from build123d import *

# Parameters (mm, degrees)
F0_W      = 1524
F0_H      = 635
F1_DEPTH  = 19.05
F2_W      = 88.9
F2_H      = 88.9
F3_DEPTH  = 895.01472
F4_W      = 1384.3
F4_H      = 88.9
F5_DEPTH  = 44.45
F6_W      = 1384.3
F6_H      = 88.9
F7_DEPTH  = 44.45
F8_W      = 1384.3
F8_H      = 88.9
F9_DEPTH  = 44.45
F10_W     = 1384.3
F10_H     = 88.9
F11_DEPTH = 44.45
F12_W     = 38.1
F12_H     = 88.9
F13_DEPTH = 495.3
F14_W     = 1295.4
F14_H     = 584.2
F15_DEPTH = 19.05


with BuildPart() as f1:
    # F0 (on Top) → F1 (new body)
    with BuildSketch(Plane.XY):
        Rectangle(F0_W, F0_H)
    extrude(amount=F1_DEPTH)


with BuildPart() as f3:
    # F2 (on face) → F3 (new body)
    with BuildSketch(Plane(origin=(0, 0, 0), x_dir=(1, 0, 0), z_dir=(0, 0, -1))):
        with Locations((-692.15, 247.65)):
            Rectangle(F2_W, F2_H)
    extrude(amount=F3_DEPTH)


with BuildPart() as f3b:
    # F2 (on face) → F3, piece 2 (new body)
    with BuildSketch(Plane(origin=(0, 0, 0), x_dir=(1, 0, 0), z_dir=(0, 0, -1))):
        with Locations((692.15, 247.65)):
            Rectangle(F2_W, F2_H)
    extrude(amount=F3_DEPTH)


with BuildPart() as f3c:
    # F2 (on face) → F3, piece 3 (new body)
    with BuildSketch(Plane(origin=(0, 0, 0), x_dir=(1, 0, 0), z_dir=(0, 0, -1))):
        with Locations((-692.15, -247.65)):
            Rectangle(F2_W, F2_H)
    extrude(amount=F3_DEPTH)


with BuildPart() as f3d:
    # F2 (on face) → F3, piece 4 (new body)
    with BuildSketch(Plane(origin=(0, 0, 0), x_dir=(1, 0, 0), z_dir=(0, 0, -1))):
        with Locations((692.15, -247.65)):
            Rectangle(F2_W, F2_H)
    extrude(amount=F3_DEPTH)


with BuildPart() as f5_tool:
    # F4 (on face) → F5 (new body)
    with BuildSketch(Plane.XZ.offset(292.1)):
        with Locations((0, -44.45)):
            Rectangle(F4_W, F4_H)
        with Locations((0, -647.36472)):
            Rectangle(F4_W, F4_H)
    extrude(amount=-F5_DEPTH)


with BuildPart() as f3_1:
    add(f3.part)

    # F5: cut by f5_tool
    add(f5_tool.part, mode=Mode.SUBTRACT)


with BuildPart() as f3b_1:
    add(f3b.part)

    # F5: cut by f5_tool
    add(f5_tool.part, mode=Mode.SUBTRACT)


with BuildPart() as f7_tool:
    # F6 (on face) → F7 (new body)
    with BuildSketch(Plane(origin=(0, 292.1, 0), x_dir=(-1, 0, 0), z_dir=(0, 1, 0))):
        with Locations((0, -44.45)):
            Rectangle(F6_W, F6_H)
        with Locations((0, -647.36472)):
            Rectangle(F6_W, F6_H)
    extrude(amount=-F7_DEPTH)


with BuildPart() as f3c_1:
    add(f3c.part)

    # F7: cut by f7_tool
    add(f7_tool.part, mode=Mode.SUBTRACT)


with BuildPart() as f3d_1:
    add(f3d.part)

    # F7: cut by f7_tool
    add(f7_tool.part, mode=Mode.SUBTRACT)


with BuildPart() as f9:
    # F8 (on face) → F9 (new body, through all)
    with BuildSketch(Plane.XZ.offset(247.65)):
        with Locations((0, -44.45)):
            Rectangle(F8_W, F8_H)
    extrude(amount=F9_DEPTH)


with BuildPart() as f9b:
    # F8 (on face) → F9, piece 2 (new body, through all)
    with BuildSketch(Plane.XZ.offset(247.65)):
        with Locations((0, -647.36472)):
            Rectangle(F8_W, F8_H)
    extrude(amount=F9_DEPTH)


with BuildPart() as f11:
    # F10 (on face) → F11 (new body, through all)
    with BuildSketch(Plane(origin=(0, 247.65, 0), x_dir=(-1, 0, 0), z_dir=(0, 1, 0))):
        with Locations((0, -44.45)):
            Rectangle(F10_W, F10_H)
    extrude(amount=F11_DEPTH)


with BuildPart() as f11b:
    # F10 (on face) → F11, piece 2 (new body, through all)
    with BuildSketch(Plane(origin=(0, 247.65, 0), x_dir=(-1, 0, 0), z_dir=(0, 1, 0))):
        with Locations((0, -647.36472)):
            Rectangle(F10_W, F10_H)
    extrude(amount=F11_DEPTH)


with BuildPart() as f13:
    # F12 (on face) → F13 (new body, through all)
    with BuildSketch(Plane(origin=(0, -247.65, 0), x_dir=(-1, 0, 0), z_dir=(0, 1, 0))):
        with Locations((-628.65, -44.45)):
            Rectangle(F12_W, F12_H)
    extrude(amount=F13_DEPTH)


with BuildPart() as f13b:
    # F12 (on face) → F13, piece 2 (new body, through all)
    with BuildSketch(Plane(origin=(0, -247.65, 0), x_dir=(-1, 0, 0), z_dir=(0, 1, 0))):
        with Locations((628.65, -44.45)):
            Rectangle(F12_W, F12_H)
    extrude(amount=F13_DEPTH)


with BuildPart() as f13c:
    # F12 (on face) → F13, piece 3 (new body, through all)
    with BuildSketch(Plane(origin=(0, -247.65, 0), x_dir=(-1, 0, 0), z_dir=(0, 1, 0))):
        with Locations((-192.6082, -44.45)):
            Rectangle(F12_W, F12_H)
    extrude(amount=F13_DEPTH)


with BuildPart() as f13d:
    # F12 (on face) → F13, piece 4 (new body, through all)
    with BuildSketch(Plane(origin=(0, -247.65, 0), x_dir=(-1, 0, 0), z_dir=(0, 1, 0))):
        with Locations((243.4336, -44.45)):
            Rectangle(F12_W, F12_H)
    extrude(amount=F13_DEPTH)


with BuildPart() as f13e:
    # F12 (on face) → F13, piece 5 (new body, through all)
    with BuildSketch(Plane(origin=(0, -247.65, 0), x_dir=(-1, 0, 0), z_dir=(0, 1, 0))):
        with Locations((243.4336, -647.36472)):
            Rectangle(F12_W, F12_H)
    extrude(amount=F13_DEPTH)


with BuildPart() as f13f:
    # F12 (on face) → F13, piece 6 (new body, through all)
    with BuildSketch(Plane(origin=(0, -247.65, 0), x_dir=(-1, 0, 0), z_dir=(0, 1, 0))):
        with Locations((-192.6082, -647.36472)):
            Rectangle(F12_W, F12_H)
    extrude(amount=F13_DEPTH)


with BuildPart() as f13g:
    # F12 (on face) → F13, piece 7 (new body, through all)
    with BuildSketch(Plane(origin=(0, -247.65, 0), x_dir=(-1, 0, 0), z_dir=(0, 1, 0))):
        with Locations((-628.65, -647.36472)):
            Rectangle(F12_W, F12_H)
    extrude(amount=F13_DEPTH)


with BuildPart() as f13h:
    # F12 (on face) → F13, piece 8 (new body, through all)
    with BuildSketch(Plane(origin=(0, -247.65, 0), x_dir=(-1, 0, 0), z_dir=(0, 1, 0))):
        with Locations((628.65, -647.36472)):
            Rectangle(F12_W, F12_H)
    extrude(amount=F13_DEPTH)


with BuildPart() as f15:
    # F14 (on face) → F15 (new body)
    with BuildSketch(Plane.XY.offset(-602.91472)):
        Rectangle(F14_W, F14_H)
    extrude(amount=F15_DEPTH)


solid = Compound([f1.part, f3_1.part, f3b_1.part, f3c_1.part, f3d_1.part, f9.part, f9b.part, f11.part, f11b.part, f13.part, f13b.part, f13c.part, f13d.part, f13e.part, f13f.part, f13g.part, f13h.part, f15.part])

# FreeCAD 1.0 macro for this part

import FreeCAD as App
import Part
import Sketcher
Q = App.Units.Quantity

doc = App.newDocument("Part")
body = doc.addObject("PartDesign::Body", "Body")

# Sketch on XY plane
sketch1 = doc.addObject("Sketcher::SketchObject", "Sketch")
body.addObject(sketch1)
sketch1.AttachmentSupport = (doc.XY_Plane, [""])
sketch1.MapMode = "FlatFace"
sketch1.addGeometry(Part.LineSegment(App.Vector(-762, 318, 0), App.Vector(-762, -318, 0)), False)
sketch1.addGeometry(Part.LineSegment(App.Vector(-762, -318, 0), App.Vector(762, -318, 0)), False)
sketch1.addGeometry(Part.LineSegment(App.Vector(762, -318, 0), App.Vector(762, 318, 0)), False)
sketch1.addGeometry(Part.LineSegment(App.Vector(762, 318, 0), App.Vector(-762, 318, 0)), False)
sketch1.addConstraint(Sketcher.Constraint("Coincident", 0, 2, 1, 1))
sketch1.addConstraint(Sketcher.Constraint("Coincident", 1, 2, 2, 1))
sketch1.addConstraint(Sketcher.Constraint("Coincident", 2, 2, 3, 1))
sketch1.addConstraint(Sketcher.Constraint("Coincident", 3, 2, 0, 1))
sketch1.addConstraint(Sketcher.Constraint("Vertical", 0))
sketch1.addConstraint(Sketcher.Constraint("Horizontal", 1))
sketch1.addConstraint(Sketcher.Constraint("Vertical", 2))
sketch1.addConstraint(Sketcher.Constraint("Horizontal", 3))
sketch1.addConstraint(Sketcher.Constraint("Symmetric", 0, 2, 2, 2, -1, 1))
sketch1.addConstraint(Sketcher.Constraint("DistanceX", 1, 1, 1, 2, Q("60 in")))
sketch1.addConstraint(Sketcher.Constraint("DistanceY", 0, 2, 0, 1, Q("25 in")))
pad1 = doc.addObject("PartDesign::Pad", "Pad")
body.addObject(pad1)
pad1.Profile = sketch1
pad1.Length = Q("0.75 in")
body2 = doc.addObject("PartDesign::Body", "Body001")

# Sketch on XY plane
sketch2 = doc.addObject("Sketcher::SketchObject", "Sketch001")
body2.addObject(sketch2)
sketch2.AttachmentSupport = (doc.getObject("XY_Plane001"), [""])
sketch2.MapMode = "FlatFace"
sketch2.addGeometry(Part.LineSegment(App.Vector(-737, -292, 0), App.Vector(-737, -203, 0)), False)
sketch2.addGeometry(Part.LineSegment(App.Vector(-737, -203, 0), App.Vector(-648, -203, 0)), False)
sketch2.addGeometry(Part.LineSegment(App.Vector(-648, -203, 0), App.Vector(-648, -292, 0)), False)
sketch2.addGeometry(Part.LineSegment(App.Vector(-648, -292, 0), App.Vector(-737, -292, 0)), False)
sketch2.addConstraint(Sketcher.Constraint("Coincident", 0, 2, 1, 1))
sketch2.addConstraint(Sketcher.Constraint("Coincident", 1, 2, 2, 1))
sketch2.addConstraint(Sketcher.Constraint("Coincident", 2, 2, 3, 1))
sketch2.addConstraint(Sketcher.Constraint("Coincident", 3, 2, 0, 1))
sketch2.addConstraint(Sketcher.Constraint("Vertical", 0))
sketch2.addConstraint(Sketcher.Constraint("Horizontal", 1))
sketch2.addConstraint(Sketcher.Constraint("Vertical", 2))
sketch2.addConstraint(Sketcher.Constraint("Horizontal", 3))
sketch2.addConstraint(Sketcher.Constraint("Equal", 3, 0))
sketch2.addConstraint(Sketcher.Constraint("DistanceX", 1, 1, 1, 2, Q("3.5 in")))
sketch2.addConstraint(Sketcher.Constraint("DistanceX", 0, 2, -1, 1, Q("29 in")))
sketch2.addConstraint(Sketcher.Constraint("DistanceY", 0, 2, -1, 1, Q("8 in")))
pad2 = doc.addObject("PartDesign::Pad", "Pad001")
body2.addObject(pad2)
pad2.Profile = sketch2
pad2.Length = Q("35.2368 in")
pad2.Reversed = True
body3 = doc.addObject("PartDesign::Body", "Body002")

# Sketch on XY plane
sketch3 = doc.addObject("Sketcher::SketchObject", "Sketch002")
body3.addObject(sketch3)
sketch3.AttachmentSupport = (doc.getObject("XY_Plane002"), [""])
sketch3.MapMode = "FlatFace"
sketch3.addGeometry(Part.LineSegment(App.Vector(648, -292, 0), App.Vector(648, -203, 0)), False)
sketch3.addGeometry(Part.LineSegment(App.Vector(648, -203, 0), App.Vector(737, -203, 0)), False)
sketch3.addGeometry(Part.LineSegment(App.Vector(737, -203, 0), App.Vector(737, -292, 0)), False)
sketch3.addGeometry(Part.LineSegment(App.Vector(737, -292, 0), App.Vector(648, -292, 0)), False)
sketch3.addConstraint(Sketcher.Constraint("Coincident", 0, 2, 1, 1))
sketch3.addConstraint(Sketcher.Constraint("Coincident", 1, 2, 2, 1))
sketch3.addConstraint(Sketcher.Constraint("Coincident", 2, 2, 3, 1))
sketch3.addConstraint(Sketcher.Constraint("Coincident", 3, 2, 0, 1))
sketch3.addConstraint(Sketcher.Constraint("Vertical", 0))
sketch3.addConstraint(Sketcher.Constraint("Horizontal", 1))
sketch3.addConstraint(Sketcher.Constraint("Vertical", 2))
sketch3.addConstraint(Sketcher.Constraint("Horizontal", 3))
sketch3.addConstraint(Sketcher.Constraint("Equal", 3, 0))
sketch3.addConstraint(Sketcher.Constraint("DistanceX", 1, 1, 1, 2, Q("3.5 in")))
sketch3.addConstraint(Sketcher.Constraint("DistanceY", 0, 2, -1, 1, Q("8 in")))
sketch3.addConstraint(Sketcher.Constraint("DistanceX", -1, 1, 1, 2, Q("29 in")))
pad3 = doc.addObject("PartDesign::Pad", "Pad002")
body3.addObject(pad3)
pad3.Profile = sketch3
pad3.Length = Q("35.2368 in")
pad3.Reversed = True
body4 = doc.addObject("PartDesign::Body", "Body003")

# Sketch on XY plane
sketch4 = doc.addObject("Sketcher::SketchObject", "Sketch003")
body4.addObject(sketch4)
sketch4.AttachmentSupport = (doc.getObject("XY_Plane003"), [""])
sketch4.MapMode = "FlatFace"
sketch4.addGeometry(Part.LineSegment(App.Vector(-737, 203, 0), App.Vector(-737, 292, 0)), False)
sketch4.addGeometry(Part.LineSegment(App.Vector(-737, 292, 0), App.Vector(-648, 292, 0)), False)
sketch4.addGeometry(Part.LineSegment(App.Vector(-648, 292, 0), App.Vector(-648, 203, 0)), False)
sketch4.addGeometry(Part.LineSegment(App.Vector(-648, 203, 0), App.Vector(-737, 203, 0)), False)
sketch4.addConstraint(Sketcher.Constraint("Coincident", 0, 2, 1, 1))
sketch4.addConstraint(Sketcher.Constraint("Coincident", 1, 2, 2, 1))
sketch4.addConstraint(Sketcher.Constraint("Coincident", 2, 2, 3, 1))
sketch4.addConstraint(Sketcher.Constraint("Coincident", 3, 2, 0, 1))
sketch4.addConstraint(Sketcher.Constraint("Vertical", 0))
sketch4.addConstraint(Sketcher.Constraint("Horizontal", 1))
sketch4.addConstraint(Sketcher.Constraint("Vertical", 2))
sketch4.addConstraint(Sketcher.Constraint("Horizontal", 3))
sketch4.addConstraint(Sketcher.Constraint("Equal", 3, 0))
sketch4.addConstraint(Sketcher.Constraint("DistanceX", 1, 1, 1, 2, Q("3.5 in")))
sketch4.addConstraint(Sketcher.Constraint("DistanceX", 0, 2, -1, 1, Q("29 in")))
sketch4.addConstraint(Sketcher.Constraint("DistanceY", -1, 1, 2, 2, Q("8 in")))
pad4 = doc.addObject("PartDesign::Pad", "Pad003")
body4.addObject(pad4)
pad4.Profile = sketch4
pad4.Length = Q("35.2368 in")
pad4.Reversed = True
body5 = doc.addObject("PartDesign::Body", "Body004")

# Sketch on XY plane
sketch5 = doc.addObject("Sketcher::SketchObject", "Sketch004")
body5.addObject(sketch5)
sketch5.AttachmentSupport = (doc.getObject("XY_Plane004"), [""])
sketch5.MapMode = "FlatFace"
sketch5.addGeometry(Part.LineSegment(App.Vector(648, 203, 0), App.Vector(648, 292, 0)), False)
sketch5.addGeometry(Part.LineSegment(App.Vector(648, 292, 0), App.Vector(737, 292, 0)), False)
sketch5.addGeometry(Part.LineSegment(App.Vector(737, 292, 0), App.Vector(737, 203, 0)), False)
sketch5.addGeometry(Part.LineSegment(App.Vector(737, 203, 0), App.Vector(648, 203, 0)), False)
sketch5.addConstraint(Sketcher.Constraint("Coincident", 0, 2, 1, 1))
sketch5.addConstraint(Sketcher.Constraint("Coincident", 1, 2, 2, 1))
sketch5.addConstraint(Sketcher.Constraint("Coincident", 2, 2, 3, 1))
sketch5.addConstraint(Sketcher.Constraint("Coincident", 3, 2, 0, 1))
sketch5.addConstraint(Sketcher.Constraint("Vertical", 0))
sketch5.addConstraint(Sketcher.Constraint("Horizontal", 1))
sketch5.addConstraint(Sketcher.Constraint("Vertical", 2))
sketch5.addConstraint(Sketcher.Constraint("Horizontal", 3))
sketch5.addConstraint(Sketcher.Constraint("Equal", 3, 0))
sketch5.addConstraint(Sketcher.Constraint("DistanceX", 1, 1, 1, 2, Q("3.5 in")))
sketch5.addConstraint(Sketcher.Constraint("DistanceX", -1, 1, 1, 2, Q("29 in")))
sketch5.addConstraint(Sketcher.Constraint("DistanceY", -1, 1, 2, 2, Q("8 in")))
pad5 = doc.addObject("PartDesign::Pad", "Pad004")
body5.addObject(pad5)
pad5.Profile = sketch5
pad5.Length = Q("35.2368 in")
pad5.Reversed = True
body6 = doc.addObject("PartDesign::Body", "Body005")
body6.AllowCompound = True

# Sketch on XZ plane
sketch6 = doc.addObject("Sketcher::SketchObject", "Sketch005")
body6.addObject(sketch6)
sketch6.AttachmentSupport = (doc.getObject("XZ_Plane005"), [""])
sketch6.MapMode = "FlatFace"
sketch6.AttachmentOffset = App.Placement(App.Vector(0, 0, 11.5 * 25.4), App.Rotation())
sketch6.addGeometry(Part.LineSegment(App.Vector(-692, 0, 0), App.Vector(-692, -89, 0)), False)
sketch6.addGeometry(Part.LineSegment(App.Vector(-692, -89, 0), App.Vector(692, -89, 0)), False)
sketch6.addGeometry(Part.LineSegment(App.Vector(692, -89, 0), App.Vector(692, 0, 0)), False)
sketch6.addGeometry(Part.LineSegment(App.Vector(692, 0, 0), App.Vector(-692, 0, 0)), False)
sketch6.addGeometry(Part.LineSegment(App.Vector(-692, -603, 0), App.Vector(-692, -692, 0)), False)
sketch6.addGeometry(Part.LineSegment(App.Vector(-692, -692, 0), App.Vector(692, -692, 0)), False)
sketch6.addGeometry(Part.LineSegment(App.Vector(692, -692, 0), App.Vector(692, -603, 0)), False)
sketch6.addGeometry(Part.LineSegment(App.Vector(692, -603, 0), App.Vector(-692, -603, 0)), False)
sketch6.addConstraint(Sketcher.Constraint("Coincident", 0, 2, 1, 1))
sketch6.addConstraint(Sketcher.Constraint("Coincident", 1, 2, 2, 1))
sketch6.addConstraint(Sketcher.Constraint("Coincident", 2, 2, 3, 1))
sketch6.addConstraint(Sketcher.Constraint("Coincident", 3, 2, 0, 1))
sketch6.addConstraint(Sketcher.Constraint("Coincident", 4, 2, 5, 1))
sketch6.addConstraint(Sketcher.Constraint("Coincident", 5, 2, 6, 1))
sketch6.addConstraint(Sketcher.Constraint("Coincident", 6, 2, 7, 1))
sketch6.addConstraint(Sketcher.Constraint("Coincident", 7, 2, 4, 1))
sketch6.addConstraint(Sketcher.Constraint("Vertical", 0))
sketch6.addConstraint(Sketcher.Constraint("Horizontal", 1))
sketch6.addConstraint(Sketcher.Constraint("Vertical", 2))
sketch6.addConstraint(Sketcher.Constraint("Horizontal", 3))
sketch6.addConstraint(Sketcher.Constraint("Vertical", 4))
sketch6.addConstraint(Sketcher.Constraint("Horizontal", 5))
sketch6.addConstraint(Sketcher.Constraint("Vertical", 6))
sketch6.addConstraint(Sketcher.Constraint("Horizontal", 7))
sketch6.addConstraint(Sketcher.Constraint("Symmetric", 2, 2, 3, 2, -1, 1))
sketch6.addConstraint(Sketcher.Constraint("Vertical", 3, 2, 4, 2))
sketch6.addConstraint(Sketcher.Constraint("Vertical", 2, 2, 5, 2))
sketch6.addConstraint(Sketcher.Constraint("Equal", 2, 4))
sketch6.addConstraint(Sketcher.Constraint("DistanceX", 1, 1, 1, 2, Q("54.5 in")))
sketch6.addConstraint(Sketcher.Constraint("DistanceY", 0, 2, 0, 1, Q("3.5 in")))
sketch6.addConstraint(Sketcher.Constraint("DistanceY", 4, 2, -1, 1, Q("27.2368 in")))
pad6 = doc.addObject("PartDesign::Pad", "Pad005")
body6.addObject(pad6)
pad6.Profile = sketch6
pad6.Length = Q("1.75 in")
pad6.Reversed = True
doc.recompute()

body7 = doc.addObject("PartDesign::Body", "Body006")
body7.BaseFeature = body6
boolean = doc.addObject("PartDesign::Boolean", "Boolean")
body2.addObject(boolean)
boolean.Type = "Cut"
boolean.addObjects([body7])
doc.recompute()

boolean2 = doc.addObject("PartDesign::Boolean", "Boolean001")
body3.addObject(boolean2)
boolean2.Type = "Cut"
boolean2.addObjects([body6])
body8 = doc.addObject("PartDesign::Body", "Body007")
body8.AllowCompound = True

# Sketch on XZ plane
sketch7 = doc.addObject("Sketcher::SketchObject", "Sketch006")
body8.addObject(sketch7)
sketch7.AttachmentSupport = (doc.getObject("XZ_Plane007"), [""])
sketch7.MapMode = "FlatFace"
sketch7.AttachmentOffset = App.Placement(App.Vector(0, 0, -11.5 * 25.4), App.Rotation())
sketch7.addGeometry(Part.LineSegment(App.Vector(692, 0, 0), App.Vector(692, -89, 0)), False)
sketch7.addGeometry(Part.LineSegment(App.Vector(692, -89, 0), App.Vector(-692, -89, 0)), False)
sketch7.addGeometry(Part.LineSegment(App.Vector(-692, -89, 0), App.Vector(-692, 0, 0)), False)
sketch7.addGeometry(Part.LineSegment(App.Vector(-692, 0, 0), App.Vector(692, 0, 0)), False)
sketch7.addGeometry(Part.LineSegment(App.Vector(692, -603, 0), App.Vector(692, -692, 0)), False)
sketch7.addGeometry(Part.LineSegment(App.Vector(692, -692, 0), App.Vector(-692, -692, 0)), False)
sketch7.addGeometry(Part.LineSegment(App.Vector(-692, -692, 0), App.Vector(-692, -603, 0)), False)
sketch7.addGeometry(Part.LineSegment(App.Vector(-692, -603, 0), App.Vector(692, -603, 0)), False)
sketch7.addConstraint(Sketcher.Constraint("Coincident", 0, 2, 1, 1))
sketch7.addConstraint(Sketcher.Constraint("Coincident", 1, 2, 2, 1))
sketch7.addConstraint(Sketcher.Constraint("Coincident", 2, 2, 3, 1))
sketch7.addConstraint(Sketcher.Constraint("Coincident", 3, 2, 0, 1))
sketch7.addConstraint(Sketcher.Constraint("Coincident", 4, 2, 5, 1))
sketch7.addConstraint(Sketcher.Constraint("Coincident", 5, 2, 6, 1))
sketch7.addConstraint(Sketcher.Constraint("Coincident", 6, 2, 7, 1))
sketch7.addConstraint(Sketcher.Constraint("Coincident", 7, 2, 4, 1))
sketch7.addConstraint(Sketcher.Constraint("Vertical", 0))
sketch7.addConstraint(Sketcher.Constraint("Horizontal", 1))
sketch7.addConstraint(Sketcher.Constraint("Vertical", 2))
sketch7.addConstraint(Sketcher.Constraint("Horizontal", 3))
sketch7.addConstraint(Sketcher.Constraint("Vertical", 4))
sketch7.addConstraint(Sketcher.Constraint("Horizontal", 5))
sketch7.addConstraint(Sketcher.Constraint("Vertical", 6))
sketch7.addConstraint(Sketcher.Constraint("Horizontal", 7))
sketch7.addConstraint(Sketcher.Constraint("Symmetric", 2, 2, 3, 2, -1, 1))
sketch7.addConstraint(Sketcher.Constraint("Vertical", 3, 2, 4, 2))
sketch7.addConstraint(Sketcher.Constraint("Vertical", 2, 2, 5, 2))
sketch7.addConstraint(Sketcher.Constraint("Equal", 2, 4))
sketch7.addConstraint(Sketcher.Constraint("DistanceX", 1, 2, 1, 1, Q("54.5 in")))
sketch7.addConstraint(Sketcher.Constraint("DistanceY", 0, 2, 0, 1, Q("3.5 in")))
sketch7.addConstraint(Sketcher.Constraint("DistanceY", 4, 2, -1, 1, Q("27.2368 in")))
pad7 = doc.addObject("PartDesign::Pad", "Pad006")
body8.addObject(pad7)
pad7.Profile = sketch7
pad7.Length = Q("1.75 in")
doc.recompute()

body9 = doc.addObject("PartDesign::Body", "Body008")
body9.BaseFeature = body8
boolean3 = doc.addObject("PartDesign::Boolean", "Boolean002")
body4.addObject(boolean3)
boolean3.Type = "Cut"
boolean3.addObjects([body9])
doc.recompute()

boolean4 = doc.addObject("PartDesign::Boolean", "Boolean003")
body5.addObject(boolean4)
boolean4.Type = "Cut"
boolean4.addObjects([body8])
body10 = doc.addObject("PartDesign::Body", "Body009")

# Sketch on XZ plane
sketch8 = doc.addObject("Sketcher::SketchObject", "Sketch007")
body10.addObject(sketch8)
sketch8.AttachmentSupport = (doc.getObject("XZ_Plane009"), [""])
sketch8.MapMode = "FlatFace"
sketch8.AttachmentOffset = App.Placement(App.Vector(0, 0, 9.75 * 25.4), App.Rotation())
sketch8.addGeometry(Part.LineSegment(App.Vector(-692, 0, 0), App.Vector(-692, -89, 0)), False)
sketch8.addGeometry(Part.LineSegment(App.Vector(-692, -89, 0), App.Vector(692, -89, 0)), False)
sketch8.addGeometry(Part.LineSegment(App.Vector(692, -89, 0), App.Vector(692, 0, 0)), False)
sketch8.addGeometry(Part.LineSegment(App.Vector(692, 0, 0), App.Vector(-692, 0, 0)), False)
sketch8.addConstraint(Sketcher.Constraint("Coincident", 0, 2, 1, 1))
sketch8.addConstraint(Sketcher.Constraint("Coincident", 1, 2, 2, 1))
sketch8.addConstraint(Sketcher.Constraint("Coincident", 2, 2, 3, 1))
sketch8.addConstraint(Sketcher.Constraint("Coincident", 3, 2, 0, 1))
sketch8.addConstraint(Sketcher.Constraint("Vertical", 0))
sketch8.addConstraint(Sketcher.Constraint("Horizontal", 1))
sketch8.addConstraint(Sketcher.Constraint("Vertical", 2))
sketch8.addConstraint(Sketcher.Constraint("Horizontal", 3))
sketch8.addConstraint(Sketcher.Constraint("Symmetric", 2, 2, 3, 2, -1, 1))
sketch8.addConstraint(Sketcher.Constraint("DistanceX", 1, 1, 1, 2, Q("54.5 in")))
sketch8.addConstraint(Sketcher.Constraint("DistanceY", 0, 2, 0, 1, Q("3.5 in")))
pad8 = doc.addObject("PartDesign::Pad", "Pad007")
body10.addObject(pad8)
pad8.Profile = sketch8
pad8.Length = Q("1.75 in")
body11 = doc.addObject("PartDesign::Body", "Body010")

# Sketch on XZ plane
sketch9 = doc.addObject("Sketcher::SketchObject", "Sketch008")
body11.addObject(sketch9)
sketch9.AttachmentSupport = (doc.getObject("XZ_Plane010"), [""])
sketch9.MapMode = "FlatFace"
sketch9.AttachmentOffset = App.Placement(App.Vector(0, 0, 9.75 * 25.4), App.Rotation())
sketch9.addGeometry(Part.LineSegment(App.Vector(-692, -603, 0), App.Vector(-692, -692, 0)), False)
sketch9.addGeometry(Part.LineSegment(App.Vector(-692, -692, 0), App.Vector(692, -692, 0)), False)
sketch9.addGeometry(Part.LineSegment(App.Vector(692, -692, 0), App.Vector(692, -603, 0)), False)
sketch9.addGeometry(Part.LineSegment(App.Vector(692, -603, 0), App.Vector(-692, -603, 0)), False)
sketch9.addConstraint(Sketcher.Constraint("Coincident", 0, 2, 1, 1))
sketch9.addConstraint(Sketcher.Constraint("Coincident", 1, 2, 2, 1))
sketch9.addConstraint(Sketcher.Constraint("Coincident", 2, 2, 3, 1))
sketch9.addConstraint(Sketcher.Constraint("Coincident", 3, 2, 0, 1))
sketch9.addConstraint(Sketcher.Constraint("Vertical", 0))
sketch9.addConstraint(Sketcher.Constraint("Horizontal", 1))
sketch9.addConstraint(Sketcher.Constraint("Vertical", 2))
sketch9.addConstraint(Sketcher.Constraint("Horizontal", 3))
sketch9.addConstraint(Sketcher.Constraint("DistanceX", 1, 1, 1, 2, Q("54.5 in")))
sketch9.addConstraint(Sketcher.Constraint("DistanceY", 0, 2, 0, 1, Q("3.5 in")))
sketch9.addConstraint(Sketcher.Constraint("DistanceX", 0, 2, -1, 1, Q("27.25 in")))
sketch9.addConstraint(Sketcher.Constraint("DistanceY", 0, 2, -1, 1, Q("27.2368 in")))
pad9 = doc.addObject("PartDesign::Pad", "Pad008")
body11.addObject(pad9)
pad9.Profile = sketch9
pad9.Length = Q("1.75 in")
body12 = doc.addObject("PartDesign::Body", "Body011")

# Sketch on XZ plane
sketch10 = doc.addObject("Sketcher::SketchObject", "Sketch009")
body12.addObject(sketch10)
sketch10.AttachmentSupport = (doc.getObject("XZ_Plane011"), [""])
sketch10.MapMode = "FlatFace"
sketch10.AttachmentOffset = App.Placement(App.Vector(0, 0, -9.75 * 25.4), App.Rotation())
sketch10.addGeometry(Part.LineSegment(App.Vector(692, 0, 0), App.Vector(692, -89, 0)), False)
sketch10.addGeometry(Part.LineSegment(App.Vector(692, -89, 0), App.Vector(-692, -89, 0)), False)
sketch10.addGeometry(Part.LineSegment(App.Vector(-692, -89, 0), App.Vector(-692, 0, 0)), False)
sketch10.addGeometry(Part.LineSegment(App.Vector(-692, 0, 0), App.Vector(692, 0, 0)), False)
sketch10.addConstraint(Sketcher.Constraint("Coincident", 0, 2, 1, 1))
sketch10.addConstraint(Sketcher.Constraint("Coincident", 1, 2, 2, 1))
sketch10.addConstraint(Sketcher.Constraint("Coincident", 2, 2, 3, 1))
sketch10.addConstraint(Sketcher.Constraint("Coincident", 3, 2, 0, 1))
sketch10.addConstraint(Sketcher.Constraint("Vertical", 0))
sketch10.addConstraint(Sketcher.Constraint("Horizontal", 1))
sketch10.addConstraint(Sketcher.Constraint("Vertical", 2))
sketch10.addConstraint(Sketcher.Constraint("Horizontal", 3))
sketch10.addConstraint(Sketcher.Constraint("Symmetric", 2, 2, 3, 2, -1, 1))
sketch10.addConstraint(Sketcher.Constraint("DistanceX", 1, 2, 1, 1, Q("54.5 in")))
sketch10.addConstraint(Sketcher.Constraint("DistanceY", 0, 2, 0, 1, Q("3.5 in")))
pad10 = doc.addObject("PartDesign::Pad", "Pad009")
body12.addObject(pad10)
pad10.Profile = sketch10
pad10.Length = Q("1.75 in")
pad10.Reversed = True
body13 = doc.addObject("PartDesign::Body", "Body012")

# Sketch on XZ plane
sketch11 = doc.addObject("Sketcher::SketchObject", "Sketch010")
body13.addObject(sketch11)
sketch11.AttachmentSupport = (doc.getObject("XZ_Plane012"), [""])
sketch11.MapMode = "FlatFace"
sketch11.AttachmentOffset = App.Placement(App.Vector(0, 0, -9.75 * 25.4), App.Rotation())
sketch11.addGeometry(Part.LineSegment(App.Vector(692, -603, 0), App.Vector(692, -692, 0)), False)
sketch11.addGeometry(Part.LineSegment(App.Vector(692, -692, 0), App.Vector(-692, -692, 0)), False)
sketch11.addGeometry(Part.LineSegment(App.Vector(-692, -692, 0), App.Vector(-692, -603, 0)), False)
sketch11.addGeometry(Part.LineSegment(App.Vector(-692, -603, 0), App.Vector(692, -603, 0)), False)
sketch11.addConstraint(Sketcher.Constraint("Coincident", 0, 2, 1, 1))
sketch11.addConstraint(Sketcher.Constraint("Coincident", 1, 2, 2, 1))
sketch11.addConstraint(Sketcher.Constraint("Coincident", 2, 2, 3, 1))
sketch11.addConstraint(Sketcher.Constraint("Coincident", 3, 2, 0, 1))
sketch11.addConstraint(Sketcher.Constraint("Vertical", 0))
sketch11.addConstraint(Sketcher.Constraint("Horizontal", 1))
sketch11.addConstraint(Sketcher.Constraint("Vertical", 2))
sketch11.addConstraint(Sketcher.Constraint("Horizontal", 3))
sketch11.addConstraint(Sketcher.Constraint("DistanceX", 1, 2, 1, 1, Q("54.5 in")))
sketch11.addConstraint(Sketcher.Constraint("DistanceY", 0, 2, 0, 1, Q("3.5 in")))
sketch11.addConstraint(Sketcher.Constraint("DistanceX", -1, 1, 0, 2, Q("27.25 in")))
sketch11.addConstraint(Sketcher.Constraint("DistanceY", 0, 2, -1, 1, Q("27.2368 in")))
pad11 = doc.addObject("PartDesign::Pad", "Pad010")
body13.addObject(pad11)
pad11.Profile = sketch11
pad11.Length = Q("1.75 in")
pad11.Reversed = True
body14 = doc.addObject("PartDesign::Body", "Body013")

# Sketch on XZ plane
sketch12 = doc.addObject("Sketcher::SketchObject", "Sketch011")
body14.addObject(sketch12)
sketch12.AttachmentSupport = (doc.getObject("XZ_Plane013"), [""])
sketch12.MapMode = "FlatFace"
sketch12.AttachmentOffset = App.Placement(App.Vector(0, 0, 9.75 * 25.4), App.Rotation())
sketch12.addGeometry(Part.LineSegment(App.Vector(648, 0, 0), App.Vector(648, -89, 0)), False)
sketch12.addGeometry(Part.LineSegment(App.Vector(648, -89, 0), App.Vector(610, -89, 0)), False)
sketch12.addGeometry(Part.LineSegment(App.Vector(610, -89, 0), App.Vector(610, 0, 0)), False)
sketch12.addGeometry(Part.LineSegment(App.Vector(610, 0, 0), App.Vector(648, 0, 0)), False)
sketch12.addConstraint(Sketcher.Constraint("Coincident", 0, 2, 1, 1))
sketch12.addConstraint(Sketcher.Constraint("Coincident", 1, 2, 2, 1))
sketch12.addConstraint(Sketcher.Constraint("Coincident", 2, 2, 3, 1))
sketch12.addConstraint(Sketcher.Constraint("Coincident", 3, 2, 0, 1))
sketch12.addConstraint(Sketcher.Constraint("Vertical", 0))
sketch12.addConstraint(Sketcher.Constraint("Horizontal", 1))
sketch12.addConstraint(Sketcher.Constraint("Vertical", 2))
sketch12.addConstraint(Sketcher.Constraint("Horizontal", 3))
sketch12.addConstraint(Sketcher.Constraint("PointOnObject", 2, 2, -1))
sketch12.addConstraint(Sketcher.Constraint("DistanceX", 1, 2, 1, 1, Q("1.5 in")))
sketch12.addConstraint(Sketcher.Constraint("DistanceY", 0, 2, 0, 1, Q("3.5 in")))
sketch12.addConstraint(Sketcher.Constraint("DistanceX", -1, 1, 1, 2, Q("24 in")))
pad12 = doc.addObject("PartDesign::Pad", "Pad011")
body14.addObject(pad12)
pad12.Profile = sketch12
pad12.Length = Q("19.5 in")
pad12.Reversed = True
body15 = doc.addObject("PartDesign::Body", "Body014")

# Sketch on XZ plane
sketch13 = doc.addObject("Sketcher::SketchObject", "Sketch012")
body15.addObject(sketch13)
sketch13.AttachmentSupport = (doc.getObject("XZ_Plane014"), [""])
sketch13.MapMode = "FlatFace"
sketch13.AttachmentOffset = App.Placement(App.Vector(0, 0, 9.75 * 25.4), App.Rotation())
sketch13.addGeometry(Part.LineSegment(App.Vector(-610, 0, 0), App.Vector(-610, -89, 0)), False)
sketch13.addGeometry(Part.LineSegment(App.Vector(-610, -89, 0), App.Vector(-648, -89, 0)), False)
sketch13.addGeometry(Part.LineSegment(App.Vector(-648, -89, 0), App.Vector(-648, 0, 0)), False)
sketch13.addGeometry(Part.LineSegment(App.Vector(-648, 0, 0), App.Vector(-610, 0, 0)), False)
sketch13.addConstraint(Sketcher.Constraint("Coincident", 0, 2, 1, 1))
sketch13.addConstraint(Sketcher.Constraint("Coincident", 1, 2, 2, 1))
sketch13.addConstraint(Sketcher.Constraint("Coincident", 2, 2, 3, 1))
sketch13.addConstraint(Sketcher.Constraint("Coincident", 3, 2, 0, 1))
sketch13.addConstraint(Sketcher.Constraint("Vertical", 0))
sketch13.addConstraint(Sketcher.Constraint("Horizontal", 1))
sketch13.addConstraint(Sketcher.Constraint("Vertical", 2))
sketch13.addConstraint(Sketcher.Constraint("Horizontal", 3))
sketch13.addConstraint(Sketcher.Constraint("PointOnObject", 2, 2, -1))
sketch13.addConstraint(Sketcher.Constraint("DistanceX", 1, 2, 1, 1, Q("1.5 in")))
sketch13.addConstraint(Sketcher.Constraint("DistanceY", 0, 2, 0, 1, Q("3.5 in")))
sketch13.addConstraint(Sketcher.Constraint("DistanceX", 0, 2, -1, 1, Q("24 in")))
pad13 = doc.addObject("PartDesign::Pad", "Pad012")
body15.addObject(pad13)
pad13.Profile = sketch13
pad13.Length = Q("19.5 in")
pad13.Reversed = True
body16 = doc.addObject("PartDesign::Body", "Body015")

# Sketch on XZ plane
sketch14 = doc.addObject("Sketcher::SketchObject", "Sketch013")
body16.addObject(sketch14)
sketch14.AttachmentSupport = (doc.getObject("XZ_Plane015"), [""])
sketch14.MapMode = "FlatFace"
sketch14.AttachmentOffset = App.Placement(App.Vector(0, 0, 9.75 * 25.4), App.Rotation())
sketch14.addGeometry(Part.LineSegment(App.Vector(212, 0, 0), App.Vector(212, -89, 0)), False)
sketch14.addGeometry(Part.LineSegment(App.Vector(212, -89, 0), App.Vector(174, -89, 0)), False)
sketch14.addGeometry(Part.LineSegment(App.Vector(174, -89, 0), App.Vector(174, 0, 0)), False)
sketch14.addGeometry(Part.LineSegment(App.Vector(174, 0, 0), App.Vector(212, 0, 0)), False)
sketch14.addConstraint(Sketcher.Constraint("Coincident", 0, 2, 1, 1))
sketch14.addConstraint(Sketcher.Constraint("Coincident", 1, 2, 2, 1))
sketch14.addConstraint(Sketcher.Constraint("Coincident", 2, 2, 3, 1))
sketch14.addConstraint(Sketcher.Constraint("Coincident", 3, 2, 0, 1))
sketch14.addConstraint(Sketcher.Constraint("Vertical", 0))
sketch14.addConstraint(Sketcher.Constraint("Horizontal", 1))
sketch14.addConstraint(Sketcher.Constraint("Vertical", 2))
sketch14.addConstraint(Sketcher.Constraint("Horizontal", 3))
sketch14.addConstraint(Sketcher.Constraint("PointOnObject", 2, 2, -1))
sketch14.addConstraint(Sketcher.Constraint("DistanceX", 1, 2, 1, 1, Q("1.5 in")))
sketch14.addConstraint(Sketcher.Constraint("DistanceY", 0, 2, 0, 1, Q("3.5 in")))
sketch14.addConstraint(Sketcher.Constraint("DistanceX", -1, 1, 0, 2, Q("8.333 in")))
pad14 = doc.addObject("PartDesign::Pad", "Pad013")
body16.addObject(pad14)
pad14.Profile = sketch14
pad14.Length = Q("19.5 in")
pad14.Reversed = True
body17 = doc.addObject("PartDesign::Body", "Body016")

# Sketch on XZ plane
sketch15 = doc.addObject("Sketcher::SketchObject", "Sketch014")
body17.addObject(sketch15)
sketch15.AttachmentSupport = (doc.getObject("XZ_Plane016"), [""])
sketch15.MapMode = "FlatFace"
sketch15.AttachmentOffset = App.Placement(App.Vector(0, 0, 9.75 * 25.4), App.Rotation())
sketch15.addGeometry(Part.LineSegment(App.Vector(-224, 0, 0), App.Vector(-224, -89, 0)), False)
sketch15.addGeometry(Part.LineSegment(App.Vector(-224, -89, 0), App.Vector(-262, -89, 0)), False)
sketch15.addGeometry(Part.LineSegment(App.Vector(-262, -89, 0), App.Vector(-262, 0, 0)), False)
sketch15.addGeometry(Part.LineSegment(App.Vector(-262, 0, 0), App.Vector(-224, 0, 0)), False)
sketch15.addConstraint(Sketcher.Constraint("Coincident", 0, 2, 1, 1))
sketch15.addConstraint(Sketcher.Constraint("Coincident", 1, 2, 2, 1))
sketch15.addConstraint(Sketcher.Constraint("Coincident", 2, 2, 3, 1))
sketch15.addConstraint(Sketcher.Constraint("Coincident", 3, 2, 0, 1))
sketch15.addConstraint(Sketcher.Constraint("Vertical", 0))
sketch15.addConstraint(Sketcher.Constraint("Horizontal", 1))
sketch15.addConstraint(Sketcher.Constraint("Vertical", 2))
sketch15.addConstraint(Sketcher.Constraint("Horizontal", 3))
sketch15.addConstraint(Sketcher.Constraint("PointOnObject", 2, 2, -1))
sketch15.addConstraint(Sketcher.Constraint("DistanceX", 1, 2, 1, 1, Q("1.5 in")))
sketch15.addConstraint(Sketcher.Constraint("DistanceY", 0, 2, 0, 1, Q("3.5 in")))
sketch15.addConstraint(Sketcher.Constraint("DistanceX", 0, 2, -1, 1, Q("8.834 in")))
pad15 = doc.addObject("PartDesign::Pad", "Pad014")
body17.addObject(pad15)
pad15.Profile = sketch15
pad15.Length = Q("19.5 in")
pad15.Reversed = True
body18 = doc.addObject("PartDesign::Body", "Body017")

# Sketch on XZ plane
sketch16 = doc.addObject("Sketcher::SketchObject", "Sketch015")
body18.addObject(sketch16)
sketch16.AttachmentSupport = (doc.getObject("XZ_Plane017"), [""])
sketch16.MapMode = "FlatFace"
sketch16.AttachmentOffset = App.Placement(App.Vector(0, 0, 9.75 * 25.4), App.Rotation())
sketch16.addGeometry(Part.LineSegment(App.Vector(-224, -603, 0), App.Vector(-224, -692, 0)), False)
sketch16.addGeometry(Part.LineSegment(App.Vector(-224, -692, 0), App.Vector(-262, -692, 0)), False)
sketch16.addGeometry(Part.LineSegment(App.Vector(-262, -692, 0), App.Vector(-262, -603, 0)), False)
sketch16.addGeometry(Part.LineSegment(App.Vector(-262, -603, 0), App.Vector(-224, -603, 0)), False)
sketch16.addConstraint(Sketcher.Constraint("Coincident", 0, 2, 1, 1))
sketch16.addConstraint(Sketcher.Constraint("Coincident", 1, 2, 2, 1))
sketch16.addConstraint(Sketcher.Constraint("Coincident", 2, 2, 3, 1))
sketch16.addConstraint(Sketcher.Constraint("Coincident", 3, 2, 0, 1))
sketch16.addConstraint(Sketcher.Constraint("Vertical", 0))
sketch16.addConstraint(Sketcher.Constraint("Horizontal", 1))
sketch16.addConstraint(Sketcher.Constraint("Vertical", 2))
sketch16.addConstraint(Sketcher.Constraint("Horizontal", 3))
sketch16.addConstraint(Sketcher.Constraint("DistanceX", 1, 2, 1, 1, Q("1.5 in")))
sketch16.addConstraint(Sketcher.Constraint("DistanceY", 0, 2, 0, 1, Q("3.5 in")))
sketch16.addConstraint(Sketcher.Constraint("DistanceX", 0, 2, -1, 1, Q("8.834 in")))
sketch16.addConstraint(Sketcher.Constraint("DistanceY", 0, 2, -1, 1, Q("27.2368 in")))
pad16 = doc.addObject("PartDesign::Pad", "Pad015")
body18.addObject(pad16)
pad16.Profile = sketch16
pad16.Length = Q("19.5 in")
pad16.Reversed = True
body19 = doc.addObject("PartDesign::Body", "Body018")

# Sketch on XZ plane
sketch17 = doc.addObject("Sketcher::SketchObject", "Sketch016")
body19.addObject(sketch17)
sketch17.AttachmentSupport = (doc.getObject("XZ_Plane018"), [""])
sketch17.MapMode = "FlatFace"
sketch17.AttachmentOffset = App.Placement(App.Vector(0, 0, 9.75 * 25.4), App.Rotation())
sketch17.addGeometry(Part.LineSegment(App.Vector(212, -603, 0), App.Vector(212, -692, 0)), False)
sketch17.addGeometry(Part.LineSegment(App.Vector(212, -692, 0), App.Vector(174, -692, 0)), False)
sketch17.addGeometry(Part.LineSegment(App.Vector(174, -692, 0), App.Vector(174, -603, 0)), False)
sketch17.addGeometry(Part.LineSegment(App.Vector(174, -603, 0), App.Vector(212, -603, 0)), False)
sketch17.addConstraint(Sketcher.Constraint("Coincident", 0, 2, 1, 1))
sketch17.addConstraint(Sketcher.Constraint("Coincident", 1, 2, 2, 1))
sketch17.addConstraint(Sketcher.Constraint("Coincident", 2, 2, 3, 1))
sketch17.addConstraint(Sketcher.Constraint("Coincident", 3, 2, 0, 1))
sketch17.addConstraint(Sketcher.Constraint("Vertical", 0))
sketch17.addConstraint(Sketcher.Constraint("Horizontal", 1))
sketch17.addConstraint(Sketcher.Constraint("Vertical", 2))
sketch17.addConstraint(Sketcher.Constraint("Horizontal", 3))
sketch17.addConstraint(Sketcher.Constraint("DistanceX", 1, 2, 1, 1, Q("1.5 in")))
sketch17.addConstraint(Sketcher.Constraint("DistanceY", 0, 2, 0, 1, Q("3.5 in")))
sketch17.addConstraint(Sketcher.Constraint("DistanceX", -1, 1, 0, 2, Q("8.333 in")))
sketch17.addConstraint(Sketcher.Constraint("DistanceY", 0, 2, -1, 1, Q("27.2368 in")))
pad17 = doc.addObject("PartDesign::Pad", "Pad016")
body19.addObject(pad17)
pad17.Profile = sketch17
pad17.Length = Q("19.5 in")
pad17.Reversed = True
body20 = doc.addObject("PartDesign::Body", "Body019")

# Sketch on XZ plane
sketch18 = doc.addObject("Sketcher::SketchObject", "Sketch017")
body20.addObject(sketch18)
sketch18.AttachmentSupport = (doc.getObject("XZ_Plane019"), [""])
sketch18.MapMode = "FlatFace"
sketch18.AttachmentOffset = App.Placement(App.Vector(0, 0, 9.75 * 25.4), App.Rotation())
sketch18.addGeometry(Part.LineSegment(App.Vector(648, -603, 0), App.Vector(648, -692, 0)), False)
sketch18.addGeometry(Part.LineSegment(App.Vector(648, -692, 0), App.Vector(610, -692, 0)), False)
sketch18.addGeometry(Part.LineSegment(App.Vector(610, -692, 0), App.Vector(610, -603, 0)), False)
sketch18.addGeometry(Part.LineSegment(App.Vector(610, -603, 0), App.Vector(648, -603, 0)), False)
sketch18.addConstraint(Sketcher.Constraint("Coincident", 0, 2, 1, 1))
sketch18.addConstraint(Sketcher.Constraint("Coincident", 1, 2, 2, 1))
sketch18.addConstraint(Sketcher.Constraint("Coincident", 2, 2, 3, 1))
sketch18.addConstraint(Sketcher.Constraint("Coincident", 3, 2, 0, 1))
sketch18.addConstraint(Sketcher.Constraint("Vertical", 0))
sketch18.addConstraint(Sketcher.Constraint("Horizontal", 1))
sketch18.addConstraint(Sketcher.Constraint("Vertical", 2))
sketch18.addConstraint(Sketcher.Constraint("Horizontal", 3))
sketch18.addConstraint(Sketcher.Constraint("DistanceX", 1, 2, 1, 1, Q("1.5 in")))
sketch18.addConstraint(Sketcher.Constraint("DistanceY", 0, 2, 0, 1, Q("3.5 in")))
sketch18.addConstraint(Sketcher.Constraint("DistanceX", -1, 1, 1, 2, Q("24 in")))
sketch18.addConstraint(Sketcher.Constraint("DistanceY", 0, 2, -1, 1, Q("27.2368 in")))
pad18 = doc.addObject("PartDesign::Pad", "Pad017")
body20.addObject(pad18)
pad18.Profile = sketch18
pad18.Length = Q("19.5 in")
pad18.Reversed = True
body21 = doc.addObject("PartDesign::Body", "Body020")

# Sketch on XZ plane
sketch19 = doc.addObject("Sketcher::SketchObject", "Sketch018")
body21.addObject(sketch19)
sketch19.AttachmentSupport = (doc.getObject("XZ_Plane020"), [""])
sketch19.MapMode = "FlatFace"
sketch19.AttachmentOffset = App.Placement(App.Vector(0, 0, 9.75 * 25.4), App.Rotation())
sketch19.addGeometry(Part.LineSegment(App.Vector(-610, -603, 0), App.Vector(-610, -692, 0)), False)
sketch19.addGeometry(Part.LineSegment(App.Vector(-610, -692, 0), App.Vector(-648, -692, 0)), False)
sketch19.addGeometry(Part.LineSegment(App.Vector(-648, -692, 0), App.Vector(-648, -603, 0)), False)
sketch19.addGeometry(Part.LineSegment(App.Vector(-648, -603, 0), App.Vector(-610, -603, 0)), False)
sketch19.addConstraint(Sketcher.Constraint("Coincident", 0, 2, 1, 1))
sketch19.addConstraint(Sketcher.Constraint("Coincident", 1, 2, 2, 1))
sketch19.addConstraint(Sketcher.Constraint("Coincident", 2, 2, 3, 1))
sketch19.addConstraint(Sketcher.Constraint("Coincident", 3, 2, 0, 1))
sketch19.addConstraint(Sketcher.Constraint("Vertical", 0))
sketch19.addConstraint(Sketcher.Constraint("Horizontal", 1))
sketch19.addConstraint(Sketcher.Constraint("Vertical", 2))
sketch19.addConstraint(Sketcher.Constraint("Horizontal", 3))
sketch19.addConstraint(Sketcher.Constraint("DistanceX", 1, 2, 1, 1, Q("1.5 in")))
sketch19.addConstraint(Sketcher.Constraint("DistanceY", 0, 2, 0, 1, Q("3.5 in")))
sketch19.addConstraint(Sketcher.Constraint("DistanceX", 0, 2, -1, 1, Q("24 in")))
sketch19.addConstraint(Sketcher.Constraint("DistanceY", 0, 2, -1, 1, Q("27.2368 in")))
pad19 = doc.addObject("PartDesign::Pad", "Pad018")
body21.addObject(pad19)
pad19.Profile = sketch19
pad19.Length = Q("19.5 in")
pad19.Reversed = True
body22 = doc.addObject("PartDesign::Body", "Body021")

# Sketch on XY plane
sketch20 = doc.addObject("Sketcher::SketchObject", "Sketch019")
body22.addObject(sketch20)
sketch20.AttachmentSupport = (doc.getObject("XY_Plane021"), [""])
sketch20.MapMode = "FlatFace"
sketch20.AttachmentOffset = App.Placement(App.Vector(0, 0, -23.7368 * 25.4), App.Rotation())
sketch20.addGeometry(Part.LineSegment(App.Vector(-648, 292, 0), App.Vector(-648, -292, 0)), False)
sketch20.addGeometry(Part.LineSegment(App.Vector(-648, -292, 0), App.Vector(648, -292, 0)), False)
sketch20.addGeometry(Part.LineSegment(App.Vector(648, -292, 0), App.Vector(648, 292, 0)), False)
sketch20.addGeometry(Part.LineSegment(App.Vector(648, 292, 0), App.Vector(-648, 292, 0)), False)
sketch20.addConstraint(Sketcher.Constraint("Coincident", 0, 2, 1, 1))
sketch20.addConstraint(Sketcher.Constraint("Coincident", 1, 2, 2, 1))
sketch20.addConstraint(Sketcher.Constraint("Coincident", 2, 2, 3, 1))
sketch20.addConstraint(Sketcher.Constraint("Coincident", 3, 2, 0, 1))
sketch20.addConstraint(Sketcher.Constraint("Vertical", 0))
sketch20.addConstraint(Sketcher.Constraint("Horizontal", 1))
sketch20.addConstraint(Sketcher.Constraint("Vertical", 2))
sketch20.addConstraint(Sketcher.Constraint("Horizontal", 3))
sketch20.addConstraint(Sketcher.Constraint("Symmetric", 0, 2, 2, 2, -1, 1))
sketch20.addConstraint(Sketcher.Constraint("DistanceX", 1, 1, 1, 2, Q("51 in")))
sketch20.addConstraint(Sketcher.Constraint("DistanceY", 0, 2, 0, 1, Q("23 in")))
pad20 = doc.addObject("PartDesign::Pad", "Pad019")
body22.addObject(pad20)
pad20.Profile = sketch20
pad20.Length = Q("0.75 in")

doc.recompute()
